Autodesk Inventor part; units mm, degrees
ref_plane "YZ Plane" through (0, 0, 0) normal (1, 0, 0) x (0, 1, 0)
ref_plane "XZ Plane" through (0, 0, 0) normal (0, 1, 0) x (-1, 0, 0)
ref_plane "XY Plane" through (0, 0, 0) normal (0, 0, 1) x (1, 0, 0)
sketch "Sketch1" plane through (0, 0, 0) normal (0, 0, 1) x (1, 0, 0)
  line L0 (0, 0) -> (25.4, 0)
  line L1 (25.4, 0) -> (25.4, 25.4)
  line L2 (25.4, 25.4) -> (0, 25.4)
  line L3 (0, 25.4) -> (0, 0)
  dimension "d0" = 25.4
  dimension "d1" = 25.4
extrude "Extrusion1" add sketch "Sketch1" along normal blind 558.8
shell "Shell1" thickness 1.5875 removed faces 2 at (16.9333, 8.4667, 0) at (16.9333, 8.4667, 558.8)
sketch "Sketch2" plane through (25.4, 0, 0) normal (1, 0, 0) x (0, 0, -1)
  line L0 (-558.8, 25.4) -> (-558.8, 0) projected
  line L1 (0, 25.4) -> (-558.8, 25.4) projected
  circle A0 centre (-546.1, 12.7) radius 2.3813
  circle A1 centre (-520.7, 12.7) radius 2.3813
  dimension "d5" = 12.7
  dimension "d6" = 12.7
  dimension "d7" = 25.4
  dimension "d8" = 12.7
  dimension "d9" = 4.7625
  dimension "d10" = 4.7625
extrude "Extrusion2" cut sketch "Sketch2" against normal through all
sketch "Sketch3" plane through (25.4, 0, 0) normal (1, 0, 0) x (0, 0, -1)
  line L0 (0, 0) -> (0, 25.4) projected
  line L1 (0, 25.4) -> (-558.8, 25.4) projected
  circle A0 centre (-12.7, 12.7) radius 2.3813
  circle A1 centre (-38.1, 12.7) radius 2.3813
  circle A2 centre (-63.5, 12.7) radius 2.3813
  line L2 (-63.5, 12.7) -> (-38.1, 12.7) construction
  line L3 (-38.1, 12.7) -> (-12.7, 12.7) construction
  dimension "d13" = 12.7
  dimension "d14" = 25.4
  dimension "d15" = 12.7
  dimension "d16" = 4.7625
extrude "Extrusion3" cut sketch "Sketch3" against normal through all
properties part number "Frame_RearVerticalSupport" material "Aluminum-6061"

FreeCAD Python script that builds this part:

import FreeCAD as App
import Part
import Sketcher
Q = App.Units.Quantity


def faces_at(feature, points):
    """Names of the faces that lie closest to the given points."""
    faces = feature.Shape.Faces
    near = lambda p: min(range(len(faces)), key=lambda i: faces[i].distToShape(Part.Vertex(*p))[0])
    return sorted({f"Face{near(p) + 1}" for p in points})


def add_polygon(sketch, points):
    """Adds a closed chain of lines whose ends are joined by coincident constraints."""
    first, n = sketch.GeometryCount, len(points)
    for a, b in zip(points, points[1:] + points[:1]):
        sketch.addGeometry(Part.LineSegment(App.Vector(*a, 0), App.Vector(*b, 0)), False)
    for i in range(n):
        sketch.addConstraint(Sketcher.Constraint("Coincident", first + i, 2, first + (i + 1) % n, 1))

doc = App.newDocument("Part")
body = doc.addObject("PartDesign::Body", "Body")

sketch1 = body.newObject("Sketcher::SketchObject", "Sketch")
sketch1.AttachmentSupport = (doc.getObject("XY_Plane"), [""])
sketch1.MapMode = "FlatFace"
add_polygon(sketch1, [(0, 25), (0, 0), (25, 0), (25, 25)])
sketch1.addConstraint([
    Sketcher.Constraint("Vertical", 0),
    Sketcher.Constraint("Horizontal", 1),
    Sketcher.Constraint("Vertical", 2),
    Sketcher.Constraint("Horizontal", 3),
    Sketcher.Constraint("Coincident", 0, 2, -1, 1),
    Sketcher.Constraint("Equal", 3, 0),
    Sketcher.Constraint("DistanceX", 1, 1, 1, 2, Q("1 in")),
])
pad1 = body.newObject("PartDesign::Pad", "Pad")
pad1.Profile = sketch1
pad1.Length = Q("22 in")
doc.recompute()

thickness = body.newObject("PartDesign::Thickness", "Thickness")
thickness.Base = (pad1, faces_at(pad1, [(16.933, 8.467, 0), (16.933, 8.467, 558.8)]))
thickness.Value = Q("0.0625 in")
thickness.Reversed = True
thickness.Join = "Intersection"

sketch2 = body.newObject("Sketcher::SketchObject", "Sketch001")
sketch2.AttachmentSupport = (doc.getObject("YZ_Plane"), [""])
sketch2.MapMode = "FlatFace"
sketch2.AttachmentOffset = App.Placement(App.Vector(0, 0, 1 * 25.4), App.Rotation())
sketch2.addGeometry([
    Part.Circle(App.Vector(12.7, 546.1, 0), App.Vector(0, 0, 1), 2.4),
    Part.Circle(App.Vector(12.7, 520.7, 0), App.Vector(0, 0, 1), 2.4),
], False)
sketch2.addConstraint([
    Sketcher.Constraint("Equal", 0, 1),
    Sketcher.Constraint("Vertical", 0, 3, 1, 3),
    Sketcher.Constraint("Diameter", 0, Q("0.1875 in")),
    Sketcher.Constraint("DistanceY", 1, 3, 0, 3, Q("1 in")),
    Sketcher.Constraint("DistanceX", -1, 1, 0, 3, Q("0.5 in")),
    Sketcher.Constraint("DistanceY", -1, 1, 0, 3, Q("21.5 in")),
])
pocket1 = body.newObject("PartDesign::Pocket", "Pocket")
pocket1.Profile = sketch2
pocket1.Type = "ThroughAll"

sketch3 = body.newObject("Sketcher::SketchObject", "Sketch002")
sketch3.AttachmentSupport = (doc.getObject("YZ_Plane"), [""])
sketch3.MapMode = "FlatFace"
sketch3.AttachmentOffset = App.Placement(App.Vector(0, 0, 1 * 25.4), App.Rotation())
sketch3.addGeometry([
    Part.Circle(App.Vector(12.7, 12.7, 0), App.Vector(0, 0, 1), 2.4),
    Part.Circle(App.Vector(12.7, 38.1, 0), App.Vector(0, 0, 1), 2.4),
    Part.Circle(App.Vector(12.7, 63.5, 0), App.Vector(0, 0, 1), 2.4),
], False)
sketch3.addConstraint([
    Sketcher.Constraint("Equal", 0, 1),
    Sketcher.Constraint("Equal", 1, 2),
    Sketcher.Constraint("Vertical", 0, 3, 1, 3),
    Sketcher.Constraint("Vertical", 1, 3, 2, 3),
    Sketcher.Constraint("Diameter", 0, Q("0.1875 in")),
    Sketcher.Constraint("DistanceY", 0, 3, 1, 3, Q("1 in")),
    Sketcher.Constraint("DistanceY", 1, 3, 2, 3, Q("1 in")),
    Sketcher.Constraint("DistanceX", -1, 1, 0, 3, Q("0.5 in")),
    Sketcher.Constraint("DistanceY", -1, 1, 0, 3, Q("0.5 in")),
])
pocket2 = body.newObject("PartDesign::Pocket", "Pocket001")
pocket2.Profile = sketch3
pocket2.Type = "ThroughAll"

doc.recompute()
